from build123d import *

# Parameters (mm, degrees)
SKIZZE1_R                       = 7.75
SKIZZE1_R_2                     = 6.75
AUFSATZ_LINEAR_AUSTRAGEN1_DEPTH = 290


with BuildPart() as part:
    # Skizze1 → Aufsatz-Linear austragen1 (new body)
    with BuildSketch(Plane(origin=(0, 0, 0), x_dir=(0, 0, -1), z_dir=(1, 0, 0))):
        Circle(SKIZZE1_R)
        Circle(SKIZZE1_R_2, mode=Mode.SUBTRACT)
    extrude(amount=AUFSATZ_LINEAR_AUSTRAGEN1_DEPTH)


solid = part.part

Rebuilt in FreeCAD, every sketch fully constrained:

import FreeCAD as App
import Part
import Sketcher

doc = App.newDocument("Part")
body = doc.addObject("PartDesign::Body", "Body")

# Sketch on YZ plane
sketch1 = doc.addObject("Sketcher::SketchObject", "Sketch")
body.addObject(sketch1)
sketch1.AttachmentSupport = (doc.YZ_Plane, [""])
sketch1.MapMode = "FlatFace"
sketch1.addGeometry([
    Part.Circle(App.Vector(0, 0, 0), App.Vector(0, 0, 1), 8),
    Part.Circle(App.Vector(0, 0, 0), App.Vector(0, 0, 1), 7),
], False)
sketch1.addConstraint([
    Sketcher.Constraint("Coincident", 0, 3, -1, 1),
    Sketcher.Constraint("Coincident", 1, 3, -1, 1),
    Sketcher.Constraint("Diameter", 0, 15.5),
    Sketcher.Constraint("Diameter", 1, 13.5),
])
pad1 = doc.addObject("PartDesign::Pad", "Pad")
body.addObject(pad1)
pad1.Profile = sketch1
pad1.Length = 290

doc.recompute()
